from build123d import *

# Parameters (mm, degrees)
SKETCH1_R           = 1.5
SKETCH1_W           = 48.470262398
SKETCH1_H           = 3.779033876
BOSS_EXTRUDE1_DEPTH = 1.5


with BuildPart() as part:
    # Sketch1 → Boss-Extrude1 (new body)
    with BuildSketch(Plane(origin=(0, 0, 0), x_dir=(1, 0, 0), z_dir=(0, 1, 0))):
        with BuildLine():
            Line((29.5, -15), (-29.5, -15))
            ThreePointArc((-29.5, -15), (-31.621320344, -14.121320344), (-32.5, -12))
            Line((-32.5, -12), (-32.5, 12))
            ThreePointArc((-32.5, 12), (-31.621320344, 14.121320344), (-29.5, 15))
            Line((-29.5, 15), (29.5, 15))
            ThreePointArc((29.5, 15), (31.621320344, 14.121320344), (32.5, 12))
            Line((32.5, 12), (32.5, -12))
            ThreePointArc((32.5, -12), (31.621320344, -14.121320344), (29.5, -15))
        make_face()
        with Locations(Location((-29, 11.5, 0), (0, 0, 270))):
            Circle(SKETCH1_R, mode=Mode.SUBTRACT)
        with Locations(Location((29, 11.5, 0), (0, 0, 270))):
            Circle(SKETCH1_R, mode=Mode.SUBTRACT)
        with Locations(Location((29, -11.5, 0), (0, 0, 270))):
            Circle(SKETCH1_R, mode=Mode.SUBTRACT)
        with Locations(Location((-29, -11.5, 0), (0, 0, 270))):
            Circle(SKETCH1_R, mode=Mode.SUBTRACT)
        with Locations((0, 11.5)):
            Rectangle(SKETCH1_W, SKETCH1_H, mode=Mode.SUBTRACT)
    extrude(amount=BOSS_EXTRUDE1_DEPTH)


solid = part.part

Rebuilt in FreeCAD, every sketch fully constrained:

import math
import FreeCAD as App
import Part
import Sketcher

V = App.Vector

doc = App.newDocument("Part")
body = doc.addObject("PartDesign::Body", "Body")

sketch1 = doc.addObject("Sketcher::SketchObject", "Sketch")
body.addObject(sketch1)
sketch1.AttachmentSupport = (doc.XZ_Plane, [""])
sketch1.MapMode = "FlatFace"
sketch1.addGeometry(Part.LineSegment(V(-29.5, 15, 0), V(29.5, 15, 0)), False)
sketch1.addGeometry(Part.ArcOfCircle(Part.Circle(V(29.5, 12, 0), V(0, 0, 1), 3), math.radians(0), math.radians(90)), False)
sketch1.addGeometry(Part.LineSegment(V(32.5, 12, 0), V(32.5, -12, 0)), False)
sketch1.addGeometry(Part.ArcOfCircle(Part.Circle(V(29.5, -12, 0), V(0, 0, 1), 3), math.radians(-90), math.radians(0)), False)
sketch1.addGeometry(Part.LineSegment(V(29.5, -15, 0), V(-29.5, -15, 0)), False)
sketch1.addGeometry(Part.ArcOfCircle(Part.Circle(V(-29.5, -12, 0), V(0, 0, 1), 3), math.radians(180), math.radians(270)), False)
sketch1.addGeometry(Part.LineSegment(V(-32.5, -12, 0), V(-32.5, 12, 0)), False)
sketch1.addGeometry(Part.ArcOfCircle(Part.Circle(V(-29.5, 12, 0), V(0, 0, 1), 3), math.radians(90), math.radians(180)), False)
sketch1.addGeometry(Part.Circle(V(29, 11.5, 0), V(0, 0, 1), 1.5), False)
sketch1.addGeometry(Part.Circle(V(-29, 11.5, 0), V(0, 0, 1), 1.5), False)
sketch1.addGeometry(Part.Circle(V(29, -11.5, 0), V(0, 0, 1), 1.5), False)
sketch1.addGeometry(Part.LineSegment(V(-24.2, -9.6, 0), V(-24.2, -13.4, 0)), False)
sketch1.addGeometry(Part.LineSegment(V(-24.2, -13.4, 0), V(24.2, -13.4, 0)), False)
sketch1.addGeometry(Part.LineSegment(V(24.2, -13.4, 0), V(24.2, -9.6, 0)), False)
sketch1.addGeometry(Part.LineSegment(V(24.2, -9.6, 0), V(-24.2, -9.6, 0)), False)
sketch1.addGeometry(Part.Circle(V(-29, -11.5, 0), V(0, 0, 1), 1.5), False)
sketch1.addConstraint(Sketcher.Constraint("Tangent", 0, 2, 1, 2))
sketch1.addConstraint(Sketcher.Constraint("Tangent", 1, 1, 2, 1))
sketch1.addConstraint(Sketcher.Constraint("Tangent", 2, 2, 3, 2))
sketch1.addConstraint(Sketcher.Constraint("Tangent", 3, 1, 4, 1))
sketch1.addConstraint(Sketcher.Constraint("Tangent", 4, 2, 5, 2))
sketch1.addConstraint(Sketcher.Constraint("Tangent", 5, 1, 6, 1))
sketch1.addConstraint(Sketcher.Constraint("Tangent", 6, 2, 7, 2))
sketch1.addConstraint(Sketcher.Constraint("Tangent", 7, 1, 0, 1))
sketch1.addConstraint(Sketcher.Constraint("Coincident", 11, 2, 12, 1))
sketch1.addConstraint(Sketcher.Constraint("Coincident", 12, 2, 13, 1))
sketch1.addConstraint(Sketcher.Constraint("Coincident", 13, 2, 14, 1))
sketch1.addConstraint(Sketcher.Constraint("Coincident", 14, 2, 11, 1))
sketch1.addConstraint(Sketcher.Constraint("Horizontal", 0))
sketch1.addConstraint(Sketcher.Constraint("Vertical", 2))
sketch1.addConstraint(Sketcher.Constraint("Horizontal", 4))
sketch1.addConstraint(Sketcher.Constraint("Vertical", 6))
sketch1.addConstraint(Sketcher.Constraint("Vertical", 11))
sketch1.addConstraint(Sketcher.Constraint("Horizontal", 12))
sketch1.addConstraint(Sketcher.Constraint("Vertical", 13))
sketch1.addConstraint(Sketcher.Constraint("Horizontal", 14))
sketch1.addConstraint(Sketcher.Constraint("Equal", 1, 3))
sketch1.addConstraint(Sketcher.Constraint("Equal", 3, 5))
sketch1.addConstraint(Sketcher.Constraint("Equal", 5, 7))
sketch1.addConstraint(Sketcher.Constraint("Equal", 8, 9))
sketch1.addConstraint(Sketcher.Constraint("Equal", 9, 10))
sketch1.addConstraint(Sketcher.Constraint("Equal", 10, 15))
sketch1.addConstraint(Sketcher.Constraint("Symmetric", 1, 3, 5, 3, -1, 1))
sketch1.addConstraint(Sketcher.Constraint("Symmetric", 9, 3, 10, 3, -1, 1))
sketch1.addConstraint(Sketcher.Constraint("Symmetric", 8, 3, 15, 3, -1, 1))
sketch1.addConstraint(Sketcher.Constraint("Symmetric", 8, 3, 9, 3, -2))
sketch1.addConstraint(Sketcher.Constraint("Diameter", 8, 3.0))
sketch1.addConstraint(Sketcher.Constraint("Radius", 1, 3.0))
sketch1.addConstraint(Sketcher.Constraint("DistanceX", 0, 1, 0, 2, 59.0))
sketch1.addConstraint(Sketcher.Constraint("DistanceY", 2, 2, 2, 1, 24.0))
sketch1.addConstraint(Sketcher.Constraint("DistanceX", -1, 1, 8, 3, 29.0))
sketch1.addConstraint(Sketcher.Constraint("DistanceY", 10, 3, 8, 3, 23.0))
sketch1.addConstraint(Sketcher.Constraint("DistanceX", 12, 1, 12, 2, 48.470262))
sketch1.addConstraint(Sketcher.Constraint("DistanceY", 11, 2, 11, 1, 3.779034))
sketch1.addConstraint(Sketcher.Constraint("DistanceX", 11, 2, -1, 1, 24.235131))
sketch1.addConstraint(Sketcher.Constraint("DistanceY", 11, 2, -1, 1, 13.389517))
pad1 = doc.addObject("PartDesign::Pad", "Pad")
body.addObject(pad1)
pad1.Profile = sketch1
pad1.Length = 1.5
pad1.Reversed = True

doc.recompute()
